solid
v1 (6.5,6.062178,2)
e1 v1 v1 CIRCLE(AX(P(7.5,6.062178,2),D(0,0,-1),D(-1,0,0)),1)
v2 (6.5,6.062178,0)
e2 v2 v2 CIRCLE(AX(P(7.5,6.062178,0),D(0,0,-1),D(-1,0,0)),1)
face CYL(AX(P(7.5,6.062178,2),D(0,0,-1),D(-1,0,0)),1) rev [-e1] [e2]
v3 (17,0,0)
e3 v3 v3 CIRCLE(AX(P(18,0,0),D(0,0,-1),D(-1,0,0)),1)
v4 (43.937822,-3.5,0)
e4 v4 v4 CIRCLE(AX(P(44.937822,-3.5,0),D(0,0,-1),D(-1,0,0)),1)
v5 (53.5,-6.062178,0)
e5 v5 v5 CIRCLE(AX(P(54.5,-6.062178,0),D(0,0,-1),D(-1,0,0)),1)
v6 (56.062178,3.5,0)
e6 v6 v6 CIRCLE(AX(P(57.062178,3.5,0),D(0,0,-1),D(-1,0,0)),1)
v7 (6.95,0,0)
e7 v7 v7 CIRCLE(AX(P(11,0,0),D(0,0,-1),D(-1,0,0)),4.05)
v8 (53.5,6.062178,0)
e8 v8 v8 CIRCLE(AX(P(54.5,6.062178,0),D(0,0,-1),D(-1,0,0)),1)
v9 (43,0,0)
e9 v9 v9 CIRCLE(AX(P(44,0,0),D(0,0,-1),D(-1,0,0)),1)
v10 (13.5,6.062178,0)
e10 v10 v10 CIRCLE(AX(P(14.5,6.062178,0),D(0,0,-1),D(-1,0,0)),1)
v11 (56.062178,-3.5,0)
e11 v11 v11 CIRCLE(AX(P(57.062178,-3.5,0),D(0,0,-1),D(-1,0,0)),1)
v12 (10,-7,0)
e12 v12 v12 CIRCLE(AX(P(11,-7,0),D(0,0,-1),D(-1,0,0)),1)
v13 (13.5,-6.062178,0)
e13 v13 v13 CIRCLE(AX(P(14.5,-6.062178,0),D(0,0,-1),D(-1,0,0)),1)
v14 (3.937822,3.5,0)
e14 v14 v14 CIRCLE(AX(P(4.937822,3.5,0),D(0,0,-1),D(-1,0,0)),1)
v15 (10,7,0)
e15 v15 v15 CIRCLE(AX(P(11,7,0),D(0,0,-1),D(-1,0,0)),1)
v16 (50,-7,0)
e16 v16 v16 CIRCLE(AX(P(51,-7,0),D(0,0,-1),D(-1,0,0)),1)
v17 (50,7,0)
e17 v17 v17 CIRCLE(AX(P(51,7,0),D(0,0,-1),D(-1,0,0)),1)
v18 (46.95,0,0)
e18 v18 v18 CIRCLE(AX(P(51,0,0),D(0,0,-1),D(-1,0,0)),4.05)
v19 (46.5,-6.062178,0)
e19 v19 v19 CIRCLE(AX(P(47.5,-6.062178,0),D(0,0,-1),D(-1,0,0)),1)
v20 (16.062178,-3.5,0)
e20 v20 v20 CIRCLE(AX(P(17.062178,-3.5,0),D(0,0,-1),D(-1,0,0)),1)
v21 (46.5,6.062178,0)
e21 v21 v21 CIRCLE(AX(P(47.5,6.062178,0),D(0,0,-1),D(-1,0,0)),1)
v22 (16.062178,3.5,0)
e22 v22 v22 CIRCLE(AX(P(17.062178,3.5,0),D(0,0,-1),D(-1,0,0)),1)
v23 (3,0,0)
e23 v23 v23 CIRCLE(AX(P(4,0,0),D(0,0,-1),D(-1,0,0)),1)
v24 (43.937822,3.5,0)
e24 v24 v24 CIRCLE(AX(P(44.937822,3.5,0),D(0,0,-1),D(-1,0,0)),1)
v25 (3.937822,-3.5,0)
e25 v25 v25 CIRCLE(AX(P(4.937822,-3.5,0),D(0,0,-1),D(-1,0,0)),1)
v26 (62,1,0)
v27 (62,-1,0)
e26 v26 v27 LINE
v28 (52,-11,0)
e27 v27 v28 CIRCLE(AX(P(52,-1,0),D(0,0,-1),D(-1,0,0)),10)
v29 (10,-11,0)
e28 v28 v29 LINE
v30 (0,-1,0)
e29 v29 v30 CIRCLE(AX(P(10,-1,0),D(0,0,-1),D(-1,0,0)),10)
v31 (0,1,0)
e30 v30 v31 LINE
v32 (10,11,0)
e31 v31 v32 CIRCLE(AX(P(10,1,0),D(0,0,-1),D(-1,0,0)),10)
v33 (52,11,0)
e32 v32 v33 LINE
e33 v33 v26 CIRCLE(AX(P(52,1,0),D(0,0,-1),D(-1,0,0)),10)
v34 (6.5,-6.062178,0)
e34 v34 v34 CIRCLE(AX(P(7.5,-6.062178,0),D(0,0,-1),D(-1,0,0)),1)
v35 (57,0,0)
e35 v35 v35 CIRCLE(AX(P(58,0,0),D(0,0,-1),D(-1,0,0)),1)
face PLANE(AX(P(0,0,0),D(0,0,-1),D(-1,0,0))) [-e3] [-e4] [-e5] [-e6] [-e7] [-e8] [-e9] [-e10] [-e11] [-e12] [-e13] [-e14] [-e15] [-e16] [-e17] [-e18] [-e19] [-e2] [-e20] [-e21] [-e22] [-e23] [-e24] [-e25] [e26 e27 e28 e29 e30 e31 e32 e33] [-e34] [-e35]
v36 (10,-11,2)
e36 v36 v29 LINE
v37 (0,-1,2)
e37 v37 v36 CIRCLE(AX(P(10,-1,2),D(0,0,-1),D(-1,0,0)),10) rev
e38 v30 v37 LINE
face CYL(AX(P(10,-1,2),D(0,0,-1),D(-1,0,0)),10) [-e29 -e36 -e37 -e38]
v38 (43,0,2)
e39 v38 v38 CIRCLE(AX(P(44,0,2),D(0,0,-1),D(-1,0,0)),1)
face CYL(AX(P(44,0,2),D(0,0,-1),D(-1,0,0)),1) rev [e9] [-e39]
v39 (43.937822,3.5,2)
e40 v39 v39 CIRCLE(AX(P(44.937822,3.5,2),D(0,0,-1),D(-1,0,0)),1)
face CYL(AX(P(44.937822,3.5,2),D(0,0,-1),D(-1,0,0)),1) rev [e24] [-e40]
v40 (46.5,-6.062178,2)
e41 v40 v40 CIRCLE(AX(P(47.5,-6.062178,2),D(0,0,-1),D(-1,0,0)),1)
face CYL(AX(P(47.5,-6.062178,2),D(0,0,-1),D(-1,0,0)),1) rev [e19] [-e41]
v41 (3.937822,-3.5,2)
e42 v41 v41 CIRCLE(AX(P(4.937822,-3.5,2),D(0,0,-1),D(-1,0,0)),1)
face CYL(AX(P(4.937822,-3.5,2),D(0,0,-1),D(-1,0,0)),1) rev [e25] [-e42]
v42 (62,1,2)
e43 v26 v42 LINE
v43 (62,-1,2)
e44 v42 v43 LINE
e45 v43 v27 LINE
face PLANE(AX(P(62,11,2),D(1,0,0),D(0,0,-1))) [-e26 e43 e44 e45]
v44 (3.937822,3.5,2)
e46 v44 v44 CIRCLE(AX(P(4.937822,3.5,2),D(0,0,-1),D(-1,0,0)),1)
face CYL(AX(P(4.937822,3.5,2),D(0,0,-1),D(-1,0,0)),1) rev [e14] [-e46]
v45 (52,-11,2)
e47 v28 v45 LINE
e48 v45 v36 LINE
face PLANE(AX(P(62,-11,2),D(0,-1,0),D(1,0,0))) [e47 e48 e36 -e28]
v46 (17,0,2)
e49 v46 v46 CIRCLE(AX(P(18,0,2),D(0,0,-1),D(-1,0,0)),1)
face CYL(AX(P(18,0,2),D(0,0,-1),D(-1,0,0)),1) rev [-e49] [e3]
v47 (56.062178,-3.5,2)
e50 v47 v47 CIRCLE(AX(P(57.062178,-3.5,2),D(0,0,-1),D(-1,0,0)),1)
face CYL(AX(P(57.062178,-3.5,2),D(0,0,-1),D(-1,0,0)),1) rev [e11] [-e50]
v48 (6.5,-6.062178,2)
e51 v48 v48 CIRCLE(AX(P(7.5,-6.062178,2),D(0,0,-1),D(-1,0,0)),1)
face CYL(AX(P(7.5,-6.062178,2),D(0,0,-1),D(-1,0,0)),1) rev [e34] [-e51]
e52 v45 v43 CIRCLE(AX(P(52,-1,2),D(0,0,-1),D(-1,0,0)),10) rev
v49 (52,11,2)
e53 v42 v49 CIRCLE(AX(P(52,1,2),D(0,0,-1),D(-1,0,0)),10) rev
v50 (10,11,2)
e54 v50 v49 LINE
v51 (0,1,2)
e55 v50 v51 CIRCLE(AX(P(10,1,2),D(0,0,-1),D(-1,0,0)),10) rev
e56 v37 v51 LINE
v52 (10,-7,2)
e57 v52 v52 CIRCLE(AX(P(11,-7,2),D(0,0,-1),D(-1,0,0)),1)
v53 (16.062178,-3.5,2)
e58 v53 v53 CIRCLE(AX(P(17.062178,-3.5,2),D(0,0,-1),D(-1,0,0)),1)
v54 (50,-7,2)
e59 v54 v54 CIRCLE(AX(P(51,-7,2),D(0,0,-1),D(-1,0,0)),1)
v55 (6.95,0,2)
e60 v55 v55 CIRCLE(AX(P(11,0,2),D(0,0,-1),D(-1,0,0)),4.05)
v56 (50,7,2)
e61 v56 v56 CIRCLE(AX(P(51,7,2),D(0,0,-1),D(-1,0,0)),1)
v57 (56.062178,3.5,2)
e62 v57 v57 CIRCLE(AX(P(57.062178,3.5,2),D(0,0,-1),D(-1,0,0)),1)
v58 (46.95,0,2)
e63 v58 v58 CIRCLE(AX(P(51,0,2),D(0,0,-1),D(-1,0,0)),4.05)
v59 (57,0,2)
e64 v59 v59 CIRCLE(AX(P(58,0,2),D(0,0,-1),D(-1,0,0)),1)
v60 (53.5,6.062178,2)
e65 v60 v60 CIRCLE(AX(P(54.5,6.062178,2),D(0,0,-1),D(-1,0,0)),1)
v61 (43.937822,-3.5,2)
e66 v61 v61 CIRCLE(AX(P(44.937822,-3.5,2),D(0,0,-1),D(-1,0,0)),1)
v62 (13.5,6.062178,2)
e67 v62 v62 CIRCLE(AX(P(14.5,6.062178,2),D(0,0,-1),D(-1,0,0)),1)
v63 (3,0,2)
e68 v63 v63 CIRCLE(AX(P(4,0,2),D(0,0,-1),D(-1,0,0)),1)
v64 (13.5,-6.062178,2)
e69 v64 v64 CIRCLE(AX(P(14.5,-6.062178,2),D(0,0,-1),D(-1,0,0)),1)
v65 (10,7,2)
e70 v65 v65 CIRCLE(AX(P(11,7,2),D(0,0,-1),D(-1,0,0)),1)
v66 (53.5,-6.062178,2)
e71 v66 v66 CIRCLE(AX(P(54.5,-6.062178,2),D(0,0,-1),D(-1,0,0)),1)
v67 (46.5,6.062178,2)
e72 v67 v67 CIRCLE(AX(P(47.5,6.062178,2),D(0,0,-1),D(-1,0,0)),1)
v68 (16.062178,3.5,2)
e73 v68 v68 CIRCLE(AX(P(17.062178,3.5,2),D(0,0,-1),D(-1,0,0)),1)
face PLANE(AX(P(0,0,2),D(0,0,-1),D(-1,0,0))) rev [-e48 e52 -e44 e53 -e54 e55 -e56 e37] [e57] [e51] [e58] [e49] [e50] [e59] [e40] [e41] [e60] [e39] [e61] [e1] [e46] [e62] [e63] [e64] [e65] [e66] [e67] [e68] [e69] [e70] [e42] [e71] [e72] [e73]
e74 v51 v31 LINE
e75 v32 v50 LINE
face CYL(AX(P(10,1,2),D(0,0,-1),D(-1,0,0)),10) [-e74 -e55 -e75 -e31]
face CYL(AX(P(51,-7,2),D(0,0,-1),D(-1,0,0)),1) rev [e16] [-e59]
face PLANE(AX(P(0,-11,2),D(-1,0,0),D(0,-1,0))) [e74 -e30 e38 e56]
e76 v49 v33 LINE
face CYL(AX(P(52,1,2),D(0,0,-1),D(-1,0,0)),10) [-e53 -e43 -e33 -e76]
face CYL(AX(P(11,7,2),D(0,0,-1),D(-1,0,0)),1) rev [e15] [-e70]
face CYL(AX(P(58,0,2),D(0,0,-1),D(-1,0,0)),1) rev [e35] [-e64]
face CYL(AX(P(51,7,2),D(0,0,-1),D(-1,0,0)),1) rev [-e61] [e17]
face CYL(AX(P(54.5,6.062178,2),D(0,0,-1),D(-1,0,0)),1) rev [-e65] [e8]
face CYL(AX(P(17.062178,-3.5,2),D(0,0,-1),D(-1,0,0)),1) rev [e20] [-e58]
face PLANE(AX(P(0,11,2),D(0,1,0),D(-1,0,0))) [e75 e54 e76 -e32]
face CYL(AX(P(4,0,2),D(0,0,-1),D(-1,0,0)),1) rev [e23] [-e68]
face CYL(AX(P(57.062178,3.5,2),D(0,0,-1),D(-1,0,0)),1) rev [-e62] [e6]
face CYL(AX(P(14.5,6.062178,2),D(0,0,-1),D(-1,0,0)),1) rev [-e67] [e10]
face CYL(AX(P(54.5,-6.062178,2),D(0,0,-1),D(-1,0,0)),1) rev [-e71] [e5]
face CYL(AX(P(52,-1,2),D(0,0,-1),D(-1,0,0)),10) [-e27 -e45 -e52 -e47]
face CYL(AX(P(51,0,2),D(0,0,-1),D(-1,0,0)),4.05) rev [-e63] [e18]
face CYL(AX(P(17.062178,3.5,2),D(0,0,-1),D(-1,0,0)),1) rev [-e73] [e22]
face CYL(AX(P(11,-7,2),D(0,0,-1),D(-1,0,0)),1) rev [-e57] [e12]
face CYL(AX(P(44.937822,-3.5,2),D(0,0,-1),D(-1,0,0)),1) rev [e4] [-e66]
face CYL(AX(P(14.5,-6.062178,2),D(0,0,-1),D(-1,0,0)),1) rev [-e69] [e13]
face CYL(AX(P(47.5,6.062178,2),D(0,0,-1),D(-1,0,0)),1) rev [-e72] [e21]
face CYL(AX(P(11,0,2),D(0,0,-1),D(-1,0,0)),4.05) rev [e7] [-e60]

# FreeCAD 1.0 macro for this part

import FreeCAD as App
import Part
import Sketcher
Q = App.Units.Quantity


def edges_at(feature, points):
    """Names of the edges that pass closest to the given points."""
    edges = feature.Shape.Edges
    near = lambda p: min(range(len(edges)), key=lambda i: edges[i].distToShape(Part.Vertex(*p))[0])
    return sorted({f"Edge{near(p) + 1}" for p in points})


def add_polygon(sketch, points):
    """Adds a closed chain of lines whose ends are joined by coincident constraints."""
    first, n = sketch.GeometryCount, len(points)
    for a, b in zip(points, points[1:] + points[:1]):
        sketch.addGeometry(Part.LineSegment(App.Vector(*a, 0), App.Vector(*b, 0)), False)
    for i in range(n):
        sketch.addConstraint(Sketcher.Constraint("Coincident", first + i, 2, first + (i + 1) % n, 1))

doc = App.newDocument("Part")
body = doc.addObject("PartDesign::Body", "Body")

# Sketch on XY plane
sketch1 = body.newObject("Sketcher::SketchObject", "Sketch")
sketch1.AttachmentSupport = (doc.getObject("XY_Plane"), [""])
sketch1.MapMode = "FlatFace"
add_polygon(sketch1, [(62, 11), (62, -11), (0, -11), (0, 11)])  # lines 0-3
sketch1.addGeometry(Part.Circle(App.Vector(54.5, -6.1, 0), App.Vector(0, 0, 1), 1), False)  # 4
sketch1.addGeometry(Part.Circle(App.Vector(51, -7, 0), App.Vector(0, 0, 1), 1), False)  # 5
sketch1.addGeometry(Part.Circle(App.Vector(47.5, -6.1, 0), App.Vector(0, 0, 1), 1), False)  # 6
sketch1.addGeometry(Part.Circle(App.Vector(57.1, -3.5, 0), App.Vector(0, 0, 1), 1), False)  # 7
sketch1.addGeometry(Part.Circle(App.Vector(44.9, -3.5, 0), App.Vector(0, 0, 1), 1), False)  # 8
sketch1.addGeometry(Part.Circle(App.Vector(14.5, -6.1, 0), App.Vector(0, 0, 1), 1), False)  # 9
sketch1.addGeometry(Part.Circle(App.Vector(11, -7, 0), App.Vector(0, 0, 1), 1), False)  # 10
sketch1.addGeometry(Part.Circle(App.Vector(7.5, -6.1, 0), App.Vector(0, 0, 1), 1), False)  # 11
sketch1.addGeometry(Part.Circle(App.Vector(17.1, -3.5, 0), App.Vector(0, 0, 1), 1), False)  # 12
sketch1.addGeometry(Part.Circle(App.Vector(4.9, -3.5, 0), App.Vector(0, 0, 1), 1), False)  # 13
sketch1.addGeometry(Part.Circle(App.Vector(58, 0, 0), App.Vector(0, 0, 1), 1), False)  # 14
sketch1.addGeometry(Part.Circle(App.Vector(51, 0, 0), App.Vector(0, 0, 1), 4), False)  # 15
sketch1.addGeometry(Part.Circle(App.Vector(57.1, 3.5, 0), App.Vector(0, 0, 1), 1), False)  # 16
sketch1.addGeometry(Part.Circle(App.Vector(44, 0, 0), App.Vector(0, 0, 1), 1), False)  # 17
sketch1.addGeometry(Part.Circle(App.Vector(44.9, 3.5, 0), App.Vector(0, 0, 1), 1), False)  # 18
sketch1.addGeometry(Part.Circle(App.Vector(54.5, 6.1, 0), App.Vector(0, 0, 1), 1), False)  # 19
sketch1.addGeometry(Part.Circle(App.Vector(47.5, 6.1, 0), App.Vector(0, 0, 1), 1), False)  # 20
sketch1.addGeometry(Part.Circle(App.Vector(51, 7, 0), App.Vector(0, 0, 1), 1), False)  # 21
sketch1.addGeometry(Part.Circle(App.Vector(18, 0, 0), App.Vector(0, 0, 1), 1), False)  # 22
sketch1.addGeometry(Part.Circle(App.Vector(17.1, 3.5, 0), App.Vector(0, 0, 1), 1), False)  # 23
sketch1.addGeometry(Part.Circle(App.Vector(11, 0, 0), App.Vector(0, 0, 1), 4), False)  # 24
sketch1.addGeometry(Part.Circle(App.Vector(4, 0, 0), App.Vector(0, 0, 1), 1), False)  # 25
sketch1.addGeometry(Part.Circle(App.Vector(4.9, 3.5, 0), App.Vector(0, 0, 1), 1), False)  # 26
sketch1.addGeometry(Part.Circle(App.Vector(14.5, 6.1, 0), App.Vector(0, 0, 1), 1), False)  # 27
sketch1.addGeometry(Part.Circle(App.Vector(11, 7, 0), App.Vector(0, 0, 1), 1), False)  # 28
sketch1.addGeometry(Part.Circle(App.Vector(7.5, 6.1, 0), App.Vector(0, 0, 1), 1), False)  # 29
sketch1.addConstraint(Sketcher.Constraint("Vertical", 0))
sketch1.addConstraint(Sketcher.Constraint("Horizontal", 1))
sketch1.addConstraint(Sketcher.Constraint("Vertical", 2))
sketch1.addConstraint(Sketcher.Constraint("Horizontal", 3))
sketch1.addConstraint(Sketcher.Constraint("Equal", 4, 5))
sketch1.addConstraint(Sketcher.Constraint("Equal", 5, 6))
sketch1.addConstraint(Sketcher.Constraint("Equal", 6, 7))
sketch1.addConstraint(Sketcher.Constraint("Equal", 7, 8))
sketch1.addConstraint(Sketcher.Constraint("Equal", 8, 9))
sketch1.addConstraint(Sketcher.Constraint("Equal", 9, 10))
sketch1.addConstraint(Sketcher.Constraint("Equal", 10, 11))
sketch1.addConstraint(Sketcher.Constraint("Equal", 11, 12))
sketch1.addConstraint(Sketcher.Constraint("Equal", 12, 13))
sketch1.addConstraint(Sketcher.Constraint("Equal", 13, 14))
sketch1.addConstraint(Sketcher.Constraint("Equal", 14, 16))
sketch1.addConstraint(Sketcher.Constraint("Equal", 16, 17))
sketch1.addConstraint(Sketcher.Constraint("Equal", 17, 18))
sketch1.addConstraint(Sketcher.Constraint("Equal", 18, 19))
sketch1.addConstraint(Sketcher.Constraint("Equal", 19, 20))
sketch1.addConstraint(Sketcher.Constraint("Equal", 20, 21))
sketch1.addConstraint(Sketcher.Constraint("Equal", 21, 22))
sketch1.addConstraint(Sketcher.Constraint("Equal", 22, 23))
sketch1.addConstraint(Sketcher.Constraint("Equal", 15, 24))
sketch1.addConstraint(Sketcher.Constraint("Equal", 23, 25))
sketch1.addConstraint(Sketcher.Constraint("Equal", 25, 26))
sketch1.addConstraint(Sketcher.Constraint("Equal", 26, 27))
sketch1.addConstraint(Sketcher.Constraint("Equal", 27, 28))
sketch1.addConstraint(Sketcher.Constraint("Equal", 28, 29))
sketch1.addConstraint(Sketcher.Constraint("Symmetric", 1, 2, 2, 2, -1, 1))
sketch1.addConstraint(Sketcher.Constraint("Symmetric", 7, 3, 16, 3, -1))
sketch1.addConstraint(Sketcher.Constraint("Symmetric", 8, 3, 18, 3, -1))
sketch1.addConstraint(Sketcher.Constraint("Symmetric", 4, 3, 19, 3, -1))
sketch1.addConstraint(Sketcher.Constraint("Symmetric", 6, 3, 20, 3, -1))
sketch1.addConstraint(Sketcher.Constraint("Symmetric", 5, 3, 21, 3, -1))
sketch1.addConstraint(Sketcher.Constraint("Symmetric", 12, 3, 23, 3, -1))
sketch1.addConstraint(Sketcher.Constraint("Symmetric", 13, 3, 26, 3, -1))
sketch1.addConstraint(Sketcher.Constraint("Symmetric", 9, 3, 27, 3, -1))
sketch1.addConstraint(Sketcher.Constraint("Symmetric", 10, 3, 28, 3, -1))
sketch1.addConstraint(Sketcher.Constraint("Symmetric", 11, 3, 29, 3, -1))
sketch1.addConstraint(Sketcher.Constraint("PointOnObject", 14, 3, -1))
sketch1.addConstraint(Sketcher.Constraint("PointOnObject", 15, 3, -1))
sketch1.addConstraint(Sketcher.Constraint("PointOnObject", 17, 3, -1))
sketch1.addConstraint(Sketcher.Constraint("PointOnObject", 22, 3, -1))
sketch1.addConstraint(Sketcher.Constraint("PointOnObject", 24, 3, -1))
sketch1.addConstraint(Sketcher.Constraint("PointOnObject", 25, 3, -1))
sketch1.addConstraint(Sketcher.Constraint("Horizontal", 4, 3, 6, 3))
sketch1.addConstraint(Sketcher.Constraint("Horizontal", 7, 3, 8, 3))
sketch1.addConstraint(Sketcher.Constraint("Horizontal", 6, 3, 9, 3))
sketch1.addConstraint(Sketcher.Constraint("Horizontal", 5, 3, 10, 3))
sketch1.addConstraint(Sketcher.Constraint("Horizontal", 9, 3, 11, 3))
sketch1.addConstraint(Sketcher.Constraint("Horizontal", 8, 3, 12, 3))
sketch1.addConstraint(Sketcher.Constraint("Horizontal", 12, 3, 13, 3))
sketch1.addConstraint(Sketcher.Constraint("Vertical", 5, 3, 15, 3))
sketch1.addConstraint(Sketcher.Constraint("Vertical", 10, 3, 24, 3))
sketch1.addConstraint(Sketcher.Constraint("Diameter", 4, Q("2 mm")))
sketch1.addConstraint(Sketcher.Constraint("Diameter", 15, Q("8.1 mm")))
sketch1.addConstraint(Sketcher.Constraint("DistanceX", 1, 2, 1, 1, Q("62 mm")))
sketch1.addConstraint(Sketcher.Constraint("DistanceY", 0, 2, 0, 1, Q("22 mm")))
sketch1.addConstraint(Sketcher.Constraint("DistanceX", -1, 1, 5, 3, Q("51 mm")))
sketch1.addConstraint(Sketcher.Constraint("DistanceY", 5, 3, -1, 1, Q("7 mm")))
sketch1.addConstraint(Sketcher.Constraint("DistanceX", -1, 1, 10, 3, Q("11 mm")))
sketch1.addConstraint(Sketcher.Constraint("DistanceX", -1, 1, 14, 3, Q("58 mm")))
sketch1.addConstraint(Sketcher.Constraint("DistanceX", -1, 1, 17, 3, Q("44 mm")))
sketch1.addConstraint(Sketcher.Constraint("DistanceX", -1, 1, 22, 3, Q("18 mm")))
sketch1.addConstraint(Sketcher.Constraint("DistanceX", -1, 1, 25, 3, Q("4 mm")))
sketch1.addConstraint(Sketcher.Constraint("DistanceX", 6, 3, 4, 3, Q("7 mm")))
sketch1.addConstraint(Sketcher.Constraint("DistanceX", 9, 3, 6, 3, Q("33 mm")))
sketch1.addConstraint(Sketcher.Constraint("DistanceX", 11, 3, 9, 3, Q("7 mm")))
sketch1.addConstraint(Sketcher.Constraint("DistanceX", 13, 3, 8, 3, Q("40 mm")))
sketch1.addConstraint(Sketcher.Constraint("DistanceY", 7, 3, 16, 3, Q("7 mm")))
sketch1.addConstraint(Sketcher.Constraint("DistanceX", -1, 1, 4, 3, Q("54.5 mm")))
sketch1.addConstraint(Sketcher.Constraint("DistanceY", 4, 3, -1, 1, Q("6.062178 mm")))
sketch1.addConstraint(Sketcher.Constraint("DistanceX", -1, 1, 7, 3, Q("57.062178 mm")))
sketch1.addConstraint(Sketcher.Constraint("DistanceX", -1, 1, 8, 3, Q("44.937822 mm")))
sketch1.addConstraint(Sketcher.Constraint("DistanceX", -1, 1, 12, 3, Q("17.062178 mm")))
pad1 = body.newObject("PartDesign::Pad", "Pad")
pad1.Profile = sketch1
pad1.Length = 2
doc.recompute()

fillet = body.newObject("PartDesign::Fillet", "Fillet")
fillet.Base = (pad1, edges_at(pad1, [
    (62, 11, 1),
    (0, 11, 1),
    (0, -11, 1),
    (62, -11, 1),
]))
fillet.Radius = 10

doc.recompute()
